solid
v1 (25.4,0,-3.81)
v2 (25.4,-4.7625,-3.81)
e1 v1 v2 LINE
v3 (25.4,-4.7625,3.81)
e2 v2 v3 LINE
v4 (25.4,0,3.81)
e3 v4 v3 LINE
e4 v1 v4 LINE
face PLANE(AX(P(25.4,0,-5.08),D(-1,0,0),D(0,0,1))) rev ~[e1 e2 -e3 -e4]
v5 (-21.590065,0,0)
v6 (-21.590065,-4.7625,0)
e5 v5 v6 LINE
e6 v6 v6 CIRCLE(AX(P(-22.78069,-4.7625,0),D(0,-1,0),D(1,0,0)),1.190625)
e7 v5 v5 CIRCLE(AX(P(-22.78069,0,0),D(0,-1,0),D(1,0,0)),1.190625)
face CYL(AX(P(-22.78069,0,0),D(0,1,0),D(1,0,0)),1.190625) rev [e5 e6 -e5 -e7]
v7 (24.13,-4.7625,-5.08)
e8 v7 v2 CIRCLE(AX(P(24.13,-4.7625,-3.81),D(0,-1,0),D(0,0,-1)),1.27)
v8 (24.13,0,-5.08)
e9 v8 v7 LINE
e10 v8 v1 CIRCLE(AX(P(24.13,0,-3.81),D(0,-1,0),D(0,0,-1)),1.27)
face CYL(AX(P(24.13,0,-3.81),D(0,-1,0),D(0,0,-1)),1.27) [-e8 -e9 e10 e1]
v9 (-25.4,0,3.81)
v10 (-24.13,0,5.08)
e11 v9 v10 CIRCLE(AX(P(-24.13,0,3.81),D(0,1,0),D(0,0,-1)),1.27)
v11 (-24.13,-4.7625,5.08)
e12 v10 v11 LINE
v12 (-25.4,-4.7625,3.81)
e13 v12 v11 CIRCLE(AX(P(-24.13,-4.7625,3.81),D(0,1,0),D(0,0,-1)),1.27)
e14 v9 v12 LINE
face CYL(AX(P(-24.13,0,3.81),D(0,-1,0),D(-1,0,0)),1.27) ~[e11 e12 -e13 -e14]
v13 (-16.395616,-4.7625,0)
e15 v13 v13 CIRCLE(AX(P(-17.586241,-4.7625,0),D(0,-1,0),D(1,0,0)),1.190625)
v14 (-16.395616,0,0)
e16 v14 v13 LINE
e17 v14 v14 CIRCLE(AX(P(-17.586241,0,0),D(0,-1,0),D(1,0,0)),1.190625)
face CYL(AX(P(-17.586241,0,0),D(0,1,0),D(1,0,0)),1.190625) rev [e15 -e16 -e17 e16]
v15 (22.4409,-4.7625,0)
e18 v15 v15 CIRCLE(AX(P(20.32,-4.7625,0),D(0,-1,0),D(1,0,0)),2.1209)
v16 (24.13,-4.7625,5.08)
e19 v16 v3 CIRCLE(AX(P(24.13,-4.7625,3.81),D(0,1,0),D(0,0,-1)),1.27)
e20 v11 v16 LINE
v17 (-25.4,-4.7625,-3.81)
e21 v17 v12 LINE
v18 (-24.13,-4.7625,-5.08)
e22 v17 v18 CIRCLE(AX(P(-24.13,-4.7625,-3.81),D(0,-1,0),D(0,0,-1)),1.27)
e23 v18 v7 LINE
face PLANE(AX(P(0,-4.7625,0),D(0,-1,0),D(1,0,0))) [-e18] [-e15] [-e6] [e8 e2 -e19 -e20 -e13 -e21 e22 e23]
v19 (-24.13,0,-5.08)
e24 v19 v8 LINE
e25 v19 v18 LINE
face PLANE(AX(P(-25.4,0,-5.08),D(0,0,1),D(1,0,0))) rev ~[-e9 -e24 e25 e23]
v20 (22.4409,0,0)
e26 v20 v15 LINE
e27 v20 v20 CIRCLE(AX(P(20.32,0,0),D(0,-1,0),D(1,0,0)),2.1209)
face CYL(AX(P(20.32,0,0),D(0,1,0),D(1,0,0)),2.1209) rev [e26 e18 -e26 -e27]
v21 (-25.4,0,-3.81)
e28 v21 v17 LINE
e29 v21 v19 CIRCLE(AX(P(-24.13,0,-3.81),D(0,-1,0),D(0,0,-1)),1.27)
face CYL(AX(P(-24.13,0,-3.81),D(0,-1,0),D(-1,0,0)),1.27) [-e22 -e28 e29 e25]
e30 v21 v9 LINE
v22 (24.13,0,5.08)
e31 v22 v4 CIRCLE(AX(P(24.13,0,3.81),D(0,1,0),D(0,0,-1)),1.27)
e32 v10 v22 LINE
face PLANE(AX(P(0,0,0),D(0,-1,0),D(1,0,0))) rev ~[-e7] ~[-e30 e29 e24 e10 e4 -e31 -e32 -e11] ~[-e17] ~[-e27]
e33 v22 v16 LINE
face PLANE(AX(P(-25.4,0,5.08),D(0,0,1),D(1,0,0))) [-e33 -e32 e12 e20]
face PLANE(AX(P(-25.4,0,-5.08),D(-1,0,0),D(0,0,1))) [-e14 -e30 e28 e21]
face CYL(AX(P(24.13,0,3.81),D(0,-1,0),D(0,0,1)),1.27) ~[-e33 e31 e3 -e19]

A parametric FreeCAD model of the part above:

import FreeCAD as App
import Part
import Sketcher
from FreeCAD import Vector
Q = App.Units.Quantity


def edges_at(feature, points):
    """Names of the edges that pass closest to the given points."""
    edges = feature.Shape.Edges
    near = lambda p: min(range(len(edges)), key=lambda i: edges[i].distToShape(Part.Vertex(*p))[0])
    return sorted({f"Edge{near(p) + 1}" for p in points})


def add_polygon(sketch, points):
    """Adds a closed chain of lines whose ends are joined by coincident constraints."""
    first, n = sketch.GeometryCount, len(points)
    for a, b in zip(points, points[1:] + points[:1]):
        sketch.addGeometry(Part.LineSegment(App.Vector(*a, 0), App.Vector(*b, 0)), False)
    for i in range(n):
        sketch.addConstraint(Sketcher.Constraint("Coincident", first + i, 2, first + (i + 1) % n, 1))

doc = App.newDocument("Part")
body = doc.addObject("PartDesign::Body", "Body")

# Sketch on XZ plane
sketch1 = doc.addObject("Sketcher::SketchObject", "Sketch")
body.addObject(sketch1)
sketch1.AttachmentSupport = (doc.XZ_Plane, [""])
sketch1.MapMode = "FlatFace"
add_polygon(sketch1, [(-25.4, 5.1), (-25.4, -5.1), (25.4, -5.1), (25.4, 5.1)])  # lines 0-3
sketch1.addGeometry(Part.Circle(Vector(-22.8, 0, 0), Vector(0, 0, 1), 1.2), False)  # 4
sketch1.addGeometry(Part.Circle(Vector(-17.6, 0, 0), Vector(0, 0, 1), 1.2), False)  # 5
sketch1.addGeometry(Part.Circle(Vector(20.3, 0, 0), Vector(0, 0, 1), 2.1), False)  # 6
sketch1.addConstraint(Sketcher.Constraint("Vertical", 0))
sketch1.addConstraint(Sketcher.Constraint("Horizontal", 1))
sketch1.addConstraint(Sketcher.Constraint("Vertical", 2))
sketch1.addConstraint(Sketcher.Constraint("Horizontal", 3))
sketch1.addConstraint(Sketcher.Constraint("Equal", 4, 5))
sketch1.addConstraint(Sketcher.Constraint("Symmetric", 0, 2, 2, 2, -1, 1))
sketch1.addConstraint(Sketcher.Constraint("PointOnObject", 4, 3, -1))
sketch1.addConstraint(Sketcher.Constraint("PointOnObject", 5, 3, -1))
sketch1.addConstraint(Sketcher.Constraint("PointOnObject", 6, 3, -1))
sketch1.addConstraint(Sketcher.Constraint("DistanceX", 1, 1, 1, 2, Q("2 in")))
sketch1.addConstraint(Sketcher.Constraint("Diameter", 4, Q("0.09375 in")))
sketch1.addConstraint(Sketcher.Constraint("Diameter", 6, Q("0.167 in")))
sketch1.addConstraint(Sketcher.Constraint("DistanceY", 0, 2, 0, 1, Q("0.4 in")))
sketch1.addConstraint(Sketcher.Constraint("DistanceX", -1, 1, 6, 3, Q("0.8 in")))
sketch1.addConstraint(Sketcher.Constraint("DistanceX", 4, 3, -1, 1, Q("22.78069 mm")))
sketch1.addConstraint(Sketcher.Constraint("DistanceX", 5, 3, -1, 1, Q("17.586241 mm")))
pad1 = doc.addObject("PartDesign::Pad", "Pad")
body.addObject(pad1)
pad1.Profile = sketch1
pad1.Length = Q("0.1875 in")
doc.recompute()

fillet = doc.addObject("PartDesign::Fillet", "Fillet")
body.addObject(fillet)
fillet.Base = (pad1, edges_at(pad1, [
    (-25.4, -2.381, 5.08),
    (25.4, -2.381, 5.08),
    (25.4, -2.381, -5.08),
    (-25.4, -2.381, -5.08),
]))
fillet.Radius = Q("0.05 in")

doc.recompute()
